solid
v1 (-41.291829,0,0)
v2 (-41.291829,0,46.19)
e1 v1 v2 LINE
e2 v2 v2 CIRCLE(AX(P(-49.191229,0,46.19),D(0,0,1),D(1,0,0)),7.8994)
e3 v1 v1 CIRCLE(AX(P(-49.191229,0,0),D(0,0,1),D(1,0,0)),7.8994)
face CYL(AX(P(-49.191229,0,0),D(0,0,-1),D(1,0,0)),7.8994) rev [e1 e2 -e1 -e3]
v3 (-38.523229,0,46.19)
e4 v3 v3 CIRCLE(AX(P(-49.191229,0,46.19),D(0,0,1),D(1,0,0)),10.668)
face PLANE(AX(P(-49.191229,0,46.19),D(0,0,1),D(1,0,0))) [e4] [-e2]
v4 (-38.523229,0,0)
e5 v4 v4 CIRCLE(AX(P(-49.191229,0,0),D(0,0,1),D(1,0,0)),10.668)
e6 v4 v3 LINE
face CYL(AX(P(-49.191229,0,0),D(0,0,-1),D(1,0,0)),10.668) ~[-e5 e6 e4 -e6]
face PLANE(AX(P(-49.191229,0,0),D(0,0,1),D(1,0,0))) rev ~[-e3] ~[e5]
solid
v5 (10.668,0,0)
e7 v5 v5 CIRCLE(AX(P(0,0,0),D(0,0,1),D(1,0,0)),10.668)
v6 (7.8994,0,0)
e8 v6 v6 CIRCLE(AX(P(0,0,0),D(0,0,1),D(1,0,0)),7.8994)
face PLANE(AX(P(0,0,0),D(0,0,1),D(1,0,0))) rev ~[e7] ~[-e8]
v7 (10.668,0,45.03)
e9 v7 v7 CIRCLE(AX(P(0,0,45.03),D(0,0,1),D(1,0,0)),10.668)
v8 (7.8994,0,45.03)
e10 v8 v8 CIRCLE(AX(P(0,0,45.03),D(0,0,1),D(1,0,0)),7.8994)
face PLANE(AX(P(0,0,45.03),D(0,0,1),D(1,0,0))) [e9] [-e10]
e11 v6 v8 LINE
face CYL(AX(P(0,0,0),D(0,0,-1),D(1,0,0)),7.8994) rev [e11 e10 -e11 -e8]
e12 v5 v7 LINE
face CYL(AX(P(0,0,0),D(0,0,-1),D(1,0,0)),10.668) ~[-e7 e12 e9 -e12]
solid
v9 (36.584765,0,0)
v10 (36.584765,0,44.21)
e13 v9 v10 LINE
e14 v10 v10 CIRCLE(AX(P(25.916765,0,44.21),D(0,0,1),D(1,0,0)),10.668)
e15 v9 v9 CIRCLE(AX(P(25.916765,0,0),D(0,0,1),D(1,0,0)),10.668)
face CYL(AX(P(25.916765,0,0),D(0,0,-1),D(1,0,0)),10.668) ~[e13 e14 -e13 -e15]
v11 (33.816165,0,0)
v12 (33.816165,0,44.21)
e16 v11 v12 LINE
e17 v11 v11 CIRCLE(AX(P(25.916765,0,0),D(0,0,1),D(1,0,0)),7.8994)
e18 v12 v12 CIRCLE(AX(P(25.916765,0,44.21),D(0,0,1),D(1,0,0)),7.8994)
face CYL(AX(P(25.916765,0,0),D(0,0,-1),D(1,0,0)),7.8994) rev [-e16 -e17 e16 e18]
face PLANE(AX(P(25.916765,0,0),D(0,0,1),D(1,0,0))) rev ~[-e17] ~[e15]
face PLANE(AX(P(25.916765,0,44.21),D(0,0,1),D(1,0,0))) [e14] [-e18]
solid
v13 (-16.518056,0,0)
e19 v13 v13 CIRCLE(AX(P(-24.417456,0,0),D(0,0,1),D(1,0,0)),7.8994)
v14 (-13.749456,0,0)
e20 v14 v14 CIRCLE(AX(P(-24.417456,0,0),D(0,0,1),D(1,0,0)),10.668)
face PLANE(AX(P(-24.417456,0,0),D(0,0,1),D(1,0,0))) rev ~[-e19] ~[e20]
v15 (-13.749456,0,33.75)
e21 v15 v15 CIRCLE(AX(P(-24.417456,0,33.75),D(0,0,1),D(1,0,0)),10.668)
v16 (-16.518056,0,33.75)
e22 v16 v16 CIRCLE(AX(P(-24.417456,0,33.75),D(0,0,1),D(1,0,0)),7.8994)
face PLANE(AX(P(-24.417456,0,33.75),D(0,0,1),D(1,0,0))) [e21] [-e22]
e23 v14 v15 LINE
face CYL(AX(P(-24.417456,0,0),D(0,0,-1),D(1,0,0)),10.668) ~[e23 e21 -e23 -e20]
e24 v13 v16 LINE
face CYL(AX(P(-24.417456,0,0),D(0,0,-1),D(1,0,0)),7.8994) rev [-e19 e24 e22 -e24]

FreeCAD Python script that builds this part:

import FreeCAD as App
import Part
import Sketcher
from FreeCAD import Vector
Q = App.Units.Quantity

doc = App.newDocument("Part")
body = doc.addObject("PartDesign::Body", "Body")

# Sketch on XY plane
sketch1 = body.newObject("Sketcher::SketchObject", "Sketch")
sketch1.AttachmentSupport = (doc.getObject("XY_Plane"), [""])
sketch1.MapMode = "FlatFace"
sketch1.addGeometry([
    Part.Circle(Vector(0, 0, 0), Vector(0, 0, 1), 10.668),
    Part.Circle(Vector(0, 0, 0), Vector(0, 0, 1), 7.8994),
], False)
sketch1.addConstraint([
    Sketcher.Constraint("Coincident", 0, 3, -1, 1),
    Sketcher.Constraint("Coincident", 1, 3, -1, 1),
    Sketcher.Constraint("Diameter", 0, Q("0.84 in")),
    Sketcher.Constraint("Diameter", 1, Q("0.622 in")),
])
pad1 = body.newObject("PartDesign::Pad", "Pad")
pad1.Profile = sketch1
pad1.Length = 45.03
body2 = doc.addObject("PartDesign::Body", "Body001")

# Sketch on XY plane
sketch2 = body2.newObject("Sketcher::SketchObject", "Sketch001")
sketch2.AttachmentSupport = (doc.getObject("XY_Plane001"), [""])
sketch2.MapMode = "FlatFace"
sketch2.addGeometry([
    Part.Circle(Vector(-24.417456, 0, 0), Vector(0, 0, 1), 10.668),
    Part.Circle(Vector(-24.417456, 0, 0), Vector(0, 0, 1), 7.8994),
], False)
sketch2.addConstraint([
    Sketcher.Constraint("Coincident", 1, 3, 0, 3),
    Sketcher.Constraint("PointOnObject", 0, 3, -1),
    Sketcher.Constraint("Diameter", 0, Q("0.84 in")),
    Sketcher.Constraint("Diameter", 1, Q("0.622 in")),
    Sketcher.Constraint("DistanceX", 0, 3, -1, 1, Q("24.417456 mm")),
])
pad2 = body2.newObject("PartDesign::Pad", "Pad001")
pad2.Profile = sketch2
pad2.Length = 33.75
body3 = doc.addObject("PartDesign::Body", "Body002")

# Sketch on XY plane
sketch3 = body3.newObject("Sketcher::SketchObject", "Sketch002")
sketch3.AttachmentSupport = (doc.getObject("XY_Plane002"), [""])
sketch3.MapMode = "FlatFace"
sketch3.addGeometry([
    Part.Circle(Vector(25.916765, 0, 0), Vector(0, 0, 1), 10.668),
    Part.Circle(Vector(25.916765, 0, 0), Vector(0, 0, 1), 7.8994),
], False)
sketch3.addConstraint([
    Sketcher.Constraint("Coincident", 1, 3, 0, 3),
    Sketcher.Constraint("PointOnObject", 0, 3, -1),
    Sketcher.Constraint("Diameter", 0, Q("0.84 in")),
    Sketcher.Constraint("Diameter", 1, Q("0.622 in")),
    Sketcher.Constraint("DistanceX", -1, 1, 0, 3, Q("25.916765 mm")),
])
pad3 = body3.newObject("PartDesign::Pad", "Pad002")
pad3.Profile = sketch3
pad3.Length = 44.21
body4 = doc.addObject("PartDesign::Body", "Body003")

# Sketch on XY plane
sketch4 = body4.newObject("Sketcher::SketchObject", "Sketch003")
sketch4.AttachmentSupport = (doc.getObject("XY_Plane003"), [""])
sketch4.MapMode = "FlatFace"
sketch4.addGeometry([
    Part.Circle(Vector(-49.191229, 0, 0), Vector(0, 0, 1), 10.668),
    Part.Circle(Vector(-49.191229, 0, 0), Vector(0, 0, 1), 7.8994),
], False)
sketch4.addConstraint([
    Sketcher.Constraint("Coincident", 1, 3, 0, 3),
    Sketcher.Constraint("PointOnObject", 0, 3, -1),
    Sketcher.Constraint("Diameter", 0, Q("0.84 in")),
    Sketcher.Constraint("Diameter", 1, Q("0.622 in")),
    Sketcher.Constraint("DistanceX", 0, 3, -1, 1, Q("49.191229 mm")),
])
pad4 = body4.newObject("PartDesign::Pad", "Pad003")
pad4.Profile = sketch4
pad4.Length = 46.19

doc.recompute()
